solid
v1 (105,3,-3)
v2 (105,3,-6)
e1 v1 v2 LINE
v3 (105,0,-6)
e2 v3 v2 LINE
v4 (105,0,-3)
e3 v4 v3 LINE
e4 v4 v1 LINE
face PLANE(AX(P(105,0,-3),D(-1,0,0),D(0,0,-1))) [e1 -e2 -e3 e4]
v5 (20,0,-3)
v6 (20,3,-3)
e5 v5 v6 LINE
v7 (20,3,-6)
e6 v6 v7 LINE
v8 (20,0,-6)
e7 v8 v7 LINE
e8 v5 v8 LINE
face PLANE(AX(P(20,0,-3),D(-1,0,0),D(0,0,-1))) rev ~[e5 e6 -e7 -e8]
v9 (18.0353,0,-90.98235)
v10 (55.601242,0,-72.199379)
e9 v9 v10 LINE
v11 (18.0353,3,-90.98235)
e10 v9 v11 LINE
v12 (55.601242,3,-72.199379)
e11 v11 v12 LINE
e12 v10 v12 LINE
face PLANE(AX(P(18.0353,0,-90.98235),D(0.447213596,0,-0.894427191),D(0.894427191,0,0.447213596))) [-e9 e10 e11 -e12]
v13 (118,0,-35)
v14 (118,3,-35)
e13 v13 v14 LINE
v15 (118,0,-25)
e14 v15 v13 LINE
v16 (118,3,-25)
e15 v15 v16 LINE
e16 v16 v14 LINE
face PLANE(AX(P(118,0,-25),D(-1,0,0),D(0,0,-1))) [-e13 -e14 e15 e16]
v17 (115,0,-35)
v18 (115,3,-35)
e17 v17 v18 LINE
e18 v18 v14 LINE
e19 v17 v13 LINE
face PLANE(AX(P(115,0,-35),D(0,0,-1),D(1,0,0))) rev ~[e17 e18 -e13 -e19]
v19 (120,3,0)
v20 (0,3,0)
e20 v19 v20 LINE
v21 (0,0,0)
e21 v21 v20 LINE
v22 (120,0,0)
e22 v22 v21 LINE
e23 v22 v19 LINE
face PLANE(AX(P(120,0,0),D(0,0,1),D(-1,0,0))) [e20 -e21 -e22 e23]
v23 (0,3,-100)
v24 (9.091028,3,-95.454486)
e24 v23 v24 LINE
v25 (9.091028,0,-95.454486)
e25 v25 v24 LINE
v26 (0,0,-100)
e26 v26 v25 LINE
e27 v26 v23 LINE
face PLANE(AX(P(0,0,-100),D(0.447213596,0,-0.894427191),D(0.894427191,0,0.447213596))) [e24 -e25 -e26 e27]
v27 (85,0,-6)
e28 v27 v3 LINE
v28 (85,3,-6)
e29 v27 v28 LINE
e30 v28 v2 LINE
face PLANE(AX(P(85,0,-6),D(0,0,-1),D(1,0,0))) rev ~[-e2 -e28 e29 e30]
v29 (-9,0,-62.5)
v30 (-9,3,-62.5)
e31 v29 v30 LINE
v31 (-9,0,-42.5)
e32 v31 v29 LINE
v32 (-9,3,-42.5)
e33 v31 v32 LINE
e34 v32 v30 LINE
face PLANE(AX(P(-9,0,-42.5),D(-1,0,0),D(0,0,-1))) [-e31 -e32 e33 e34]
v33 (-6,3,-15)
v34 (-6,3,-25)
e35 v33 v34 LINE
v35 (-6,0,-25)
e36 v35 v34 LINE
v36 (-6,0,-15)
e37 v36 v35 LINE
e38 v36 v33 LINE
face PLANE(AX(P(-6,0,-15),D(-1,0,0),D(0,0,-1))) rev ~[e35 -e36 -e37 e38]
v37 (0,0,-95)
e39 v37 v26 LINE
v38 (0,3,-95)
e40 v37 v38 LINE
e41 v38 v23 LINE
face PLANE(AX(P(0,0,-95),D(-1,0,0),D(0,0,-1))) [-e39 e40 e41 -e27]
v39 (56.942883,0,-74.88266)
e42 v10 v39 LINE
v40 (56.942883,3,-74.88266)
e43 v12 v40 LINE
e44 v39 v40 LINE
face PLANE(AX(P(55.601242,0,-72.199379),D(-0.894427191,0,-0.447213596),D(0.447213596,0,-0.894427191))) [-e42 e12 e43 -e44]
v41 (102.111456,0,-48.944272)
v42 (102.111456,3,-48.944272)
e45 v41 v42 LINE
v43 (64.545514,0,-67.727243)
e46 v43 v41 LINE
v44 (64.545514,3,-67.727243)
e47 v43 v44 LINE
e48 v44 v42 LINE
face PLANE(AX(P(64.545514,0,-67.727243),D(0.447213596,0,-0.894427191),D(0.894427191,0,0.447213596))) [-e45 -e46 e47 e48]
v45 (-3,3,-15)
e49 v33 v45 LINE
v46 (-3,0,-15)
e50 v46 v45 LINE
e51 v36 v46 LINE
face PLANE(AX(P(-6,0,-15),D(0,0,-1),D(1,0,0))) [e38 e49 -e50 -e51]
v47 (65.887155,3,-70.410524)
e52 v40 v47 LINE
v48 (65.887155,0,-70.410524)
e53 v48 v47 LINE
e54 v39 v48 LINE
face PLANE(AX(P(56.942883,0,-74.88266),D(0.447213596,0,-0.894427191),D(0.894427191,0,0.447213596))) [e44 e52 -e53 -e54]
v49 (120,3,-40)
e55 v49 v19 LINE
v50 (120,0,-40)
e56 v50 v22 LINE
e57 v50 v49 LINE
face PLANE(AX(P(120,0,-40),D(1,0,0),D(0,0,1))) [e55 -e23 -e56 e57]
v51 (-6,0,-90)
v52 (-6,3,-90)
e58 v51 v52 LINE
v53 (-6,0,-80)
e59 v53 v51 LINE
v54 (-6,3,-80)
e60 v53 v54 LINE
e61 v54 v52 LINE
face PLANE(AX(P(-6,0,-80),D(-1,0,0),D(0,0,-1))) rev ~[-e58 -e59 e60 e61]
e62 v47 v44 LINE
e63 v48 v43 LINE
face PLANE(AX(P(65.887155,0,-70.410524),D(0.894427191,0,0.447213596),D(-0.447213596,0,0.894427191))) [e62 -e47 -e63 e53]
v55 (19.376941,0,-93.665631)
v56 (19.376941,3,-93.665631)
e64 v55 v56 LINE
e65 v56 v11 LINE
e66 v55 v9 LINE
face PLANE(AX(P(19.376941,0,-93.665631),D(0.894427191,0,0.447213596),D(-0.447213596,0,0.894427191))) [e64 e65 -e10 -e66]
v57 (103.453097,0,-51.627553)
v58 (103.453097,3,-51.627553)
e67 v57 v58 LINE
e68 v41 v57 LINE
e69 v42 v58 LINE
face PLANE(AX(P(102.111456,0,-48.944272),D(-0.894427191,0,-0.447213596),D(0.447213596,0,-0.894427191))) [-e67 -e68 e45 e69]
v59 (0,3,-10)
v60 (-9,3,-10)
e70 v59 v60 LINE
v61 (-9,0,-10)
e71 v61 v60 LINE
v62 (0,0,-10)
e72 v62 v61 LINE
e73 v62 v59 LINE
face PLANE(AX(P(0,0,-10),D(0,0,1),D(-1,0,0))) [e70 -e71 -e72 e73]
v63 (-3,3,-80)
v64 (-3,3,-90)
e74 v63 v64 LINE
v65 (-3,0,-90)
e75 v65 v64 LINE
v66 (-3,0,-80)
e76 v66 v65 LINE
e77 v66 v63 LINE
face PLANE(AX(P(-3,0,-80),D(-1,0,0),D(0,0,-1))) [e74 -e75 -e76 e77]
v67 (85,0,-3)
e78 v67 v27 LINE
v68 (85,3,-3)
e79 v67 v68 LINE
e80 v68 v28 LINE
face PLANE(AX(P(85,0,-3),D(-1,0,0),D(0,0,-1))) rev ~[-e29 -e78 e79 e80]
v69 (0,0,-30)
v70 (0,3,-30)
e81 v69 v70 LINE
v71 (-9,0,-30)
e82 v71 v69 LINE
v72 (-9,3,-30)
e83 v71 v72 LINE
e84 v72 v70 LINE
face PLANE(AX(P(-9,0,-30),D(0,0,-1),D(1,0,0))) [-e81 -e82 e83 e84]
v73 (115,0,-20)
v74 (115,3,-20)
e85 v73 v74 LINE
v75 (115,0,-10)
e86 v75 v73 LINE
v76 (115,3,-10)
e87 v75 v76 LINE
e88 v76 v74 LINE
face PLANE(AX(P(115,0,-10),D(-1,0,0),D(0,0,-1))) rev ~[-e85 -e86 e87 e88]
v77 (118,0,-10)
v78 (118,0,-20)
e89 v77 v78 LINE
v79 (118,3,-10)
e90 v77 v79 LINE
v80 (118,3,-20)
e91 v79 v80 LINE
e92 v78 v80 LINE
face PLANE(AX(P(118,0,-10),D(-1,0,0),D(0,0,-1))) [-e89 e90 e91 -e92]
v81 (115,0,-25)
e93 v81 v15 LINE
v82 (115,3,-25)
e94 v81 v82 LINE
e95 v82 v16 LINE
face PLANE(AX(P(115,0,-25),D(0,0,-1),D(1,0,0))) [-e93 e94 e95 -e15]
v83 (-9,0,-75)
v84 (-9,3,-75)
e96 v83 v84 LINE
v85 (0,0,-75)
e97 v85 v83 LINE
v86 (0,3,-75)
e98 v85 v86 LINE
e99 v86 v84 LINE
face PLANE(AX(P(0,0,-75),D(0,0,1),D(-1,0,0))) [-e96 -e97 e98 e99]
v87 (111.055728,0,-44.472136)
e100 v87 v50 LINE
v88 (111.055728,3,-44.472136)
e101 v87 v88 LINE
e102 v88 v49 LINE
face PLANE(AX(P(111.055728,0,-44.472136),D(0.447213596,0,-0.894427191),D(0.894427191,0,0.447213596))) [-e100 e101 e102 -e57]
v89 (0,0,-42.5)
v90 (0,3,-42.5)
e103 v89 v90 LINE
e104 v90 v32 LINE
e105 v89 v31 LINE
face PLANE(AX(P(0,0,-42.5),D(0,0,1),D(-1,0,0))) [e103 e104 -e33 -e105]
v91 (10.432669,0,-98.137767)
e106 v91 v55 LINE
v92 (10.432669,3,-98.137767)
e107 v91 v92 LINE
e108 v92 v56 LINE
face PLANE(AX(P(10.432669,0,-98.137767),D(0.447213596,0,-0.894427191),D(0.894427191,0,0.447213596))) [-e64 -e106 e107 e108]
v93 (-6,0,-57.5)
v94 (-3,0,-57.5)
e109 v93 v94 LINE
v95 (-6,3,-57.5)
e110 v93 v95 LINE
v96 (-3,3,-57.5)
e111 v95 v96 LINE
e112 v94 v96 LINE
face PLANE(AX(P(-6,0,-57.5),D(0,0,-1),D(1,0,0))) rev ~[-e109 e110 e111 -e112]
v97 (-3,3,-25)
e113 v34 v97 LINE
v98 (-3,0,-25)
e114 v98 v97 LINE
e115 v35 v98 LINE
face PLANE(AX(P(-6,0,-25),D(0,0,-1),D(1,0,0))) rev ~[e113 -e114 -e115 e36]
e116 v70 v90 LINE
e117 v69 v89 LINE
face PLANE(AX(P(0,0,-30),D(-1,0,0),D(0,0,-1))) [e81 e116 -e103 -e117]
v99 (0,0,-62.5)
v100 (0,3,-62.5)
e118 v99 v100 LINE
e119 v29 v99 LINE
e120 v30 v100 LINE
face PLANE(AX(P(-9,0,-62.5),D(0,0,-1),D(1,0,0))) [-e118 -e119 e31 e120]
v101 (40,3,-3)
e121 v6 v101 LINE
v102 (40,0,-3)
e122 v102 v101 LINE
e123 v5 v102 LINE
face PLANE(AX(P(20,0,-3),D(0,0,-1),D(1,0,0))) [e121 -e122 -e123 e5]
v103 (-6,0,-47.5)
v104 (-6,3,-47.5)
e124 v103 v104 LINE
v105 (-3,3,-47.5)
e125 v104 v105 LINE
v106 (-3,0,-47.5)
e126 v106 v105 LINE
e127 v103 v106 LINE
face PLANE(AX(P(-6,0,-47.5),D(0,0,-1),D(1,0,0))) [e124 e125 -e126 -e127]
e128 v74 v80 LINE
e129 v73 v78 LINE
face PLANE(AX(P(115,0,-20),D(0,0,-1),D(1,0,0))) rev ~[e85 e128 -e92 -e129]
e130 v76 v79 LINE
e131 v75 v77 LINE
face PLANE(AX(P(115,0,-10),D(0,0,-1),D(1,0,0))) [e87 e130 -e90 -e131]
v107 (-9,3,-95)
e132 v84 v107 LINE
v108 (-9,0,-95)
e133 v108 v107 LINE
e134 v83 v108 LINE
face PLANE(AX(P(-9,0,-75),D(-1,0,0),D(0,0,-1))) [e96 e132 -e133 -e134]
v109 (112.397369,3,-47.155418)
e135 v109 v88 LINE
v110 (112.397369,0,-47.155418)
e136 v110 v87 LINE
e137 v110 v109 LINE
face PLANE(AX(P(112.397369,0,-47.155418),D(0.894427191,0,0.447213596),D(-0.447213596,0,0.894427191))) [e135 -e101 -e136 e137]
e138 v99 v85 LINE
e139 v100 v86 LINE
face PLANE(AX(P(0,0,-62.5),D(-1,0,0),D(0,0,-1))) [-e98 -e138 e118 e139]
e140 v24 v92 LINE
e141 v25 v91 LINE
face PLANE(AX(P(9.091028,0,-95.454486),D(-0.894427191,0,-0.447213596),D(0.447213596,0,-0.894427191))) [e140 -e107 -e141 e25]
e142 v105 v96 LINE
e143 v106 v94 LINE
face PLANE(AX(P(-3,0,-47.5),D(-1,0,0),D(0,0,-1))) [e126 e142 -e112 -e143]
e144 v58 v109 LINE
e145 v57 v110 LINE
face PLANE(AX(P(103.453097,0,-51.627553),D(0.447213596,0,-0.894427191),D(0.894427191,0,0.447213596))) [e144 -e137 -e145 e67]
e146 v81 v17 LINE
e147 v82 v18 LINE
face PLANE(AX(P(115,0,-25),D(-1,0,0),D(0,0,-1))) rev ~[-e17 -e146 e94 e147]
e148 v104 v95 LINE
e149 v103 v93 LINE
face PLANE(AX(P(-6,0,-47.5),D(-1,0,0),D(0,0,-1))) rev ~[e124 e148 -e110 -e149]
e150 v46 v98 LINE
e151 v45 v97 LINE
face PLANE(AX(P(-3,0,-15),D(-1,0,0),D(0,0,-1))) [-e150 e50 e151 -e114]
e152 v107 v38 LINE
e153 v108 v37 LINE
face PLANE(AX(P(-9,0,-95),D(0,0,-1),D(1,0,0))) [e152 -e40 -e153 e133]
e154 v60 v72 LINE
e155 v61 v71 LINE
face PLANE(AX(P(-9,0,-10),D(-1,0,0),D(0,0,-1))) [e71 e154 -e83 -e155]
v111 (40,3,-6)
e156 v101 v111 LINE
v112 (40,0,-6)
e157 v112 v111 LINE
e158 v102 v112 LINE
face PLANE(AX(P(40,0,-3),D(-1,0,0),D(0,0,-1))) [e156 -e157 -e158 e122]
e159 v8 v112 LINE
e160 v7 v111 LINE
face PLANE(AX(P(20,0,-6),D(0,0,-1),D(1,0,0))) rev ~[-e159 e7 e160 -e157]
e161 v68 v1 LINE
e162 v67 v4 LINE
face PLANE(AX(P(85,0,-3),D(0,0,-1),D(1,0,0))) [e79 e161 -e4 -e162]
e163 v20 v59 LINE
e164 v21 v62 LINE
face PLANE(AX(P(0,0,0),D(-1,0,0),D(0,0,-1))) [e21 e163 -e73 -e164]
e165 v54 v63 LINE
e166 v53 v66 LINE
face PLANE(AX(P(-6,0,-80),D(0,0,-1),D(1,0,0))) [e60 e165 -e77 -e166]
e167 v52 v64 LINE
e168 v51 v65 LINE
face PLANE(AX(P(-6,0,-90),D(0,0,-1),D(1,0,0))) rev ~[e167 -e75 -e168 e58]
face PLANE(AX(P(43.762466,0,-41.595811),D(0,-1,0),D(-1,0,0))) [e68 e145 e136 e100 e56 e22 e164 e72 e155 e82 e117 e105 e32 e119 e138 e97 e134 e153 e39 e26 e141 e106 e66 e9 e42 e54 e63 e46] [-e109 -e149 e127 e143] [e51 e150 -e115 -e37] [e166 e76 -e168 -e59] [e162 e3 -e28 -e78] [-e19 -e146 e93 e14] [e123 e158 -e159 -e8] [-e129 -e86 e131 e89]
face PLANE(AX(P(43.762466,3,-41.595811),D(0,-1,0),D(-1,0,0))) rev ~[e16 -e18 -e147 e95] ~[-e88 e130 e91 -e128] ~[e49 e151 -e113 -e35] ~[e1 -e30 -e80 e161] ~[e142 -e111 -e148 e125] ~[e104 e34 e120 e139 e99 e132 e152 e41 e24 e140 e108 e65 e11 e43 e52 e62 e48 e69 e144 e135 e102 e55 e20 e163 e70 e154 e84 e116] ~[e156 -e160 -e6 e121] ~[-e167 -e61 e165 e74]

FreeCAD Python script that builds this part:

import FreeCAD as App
import Part
import Sketcher

V = App.Vector


def add_polygon(sketch, points):
    """Adds a closed chain of lines whose ends are joined by coincident constraints."""
    first, n = sketch.GeometryCount, len(points)
    for a, b in zip(points, points[1:] + points[:1]):
        sketch.addGeometry(Part.LineSegment(App.Vector(*a, 0), App.Vector(*b, 0)), False)
    for i in range(n):
        sketch.addConstraint(Sketcher.Constraint("Coincident", first + i, 2, first + (i + 1) % n, 1))

doc = App.newDocument("Part")
body = doc.addObject("PartDesign::Body", "Body")

# Sketch on XZ plane
sketch1 = body.newObject("Sketcher::SketchObject", "Sketch")
sketch1.AttachmentSupport = (doc.getObject("XZ_Plane"), [""])
sketch1.MapMode = "FlatFace"
add_polygon(sketch1, [(0, -10), (0, 0), (120, 0), (120, -40), (111.055728, -44.472136), (112.397369, -47.155418), (103.453097, -51.627553), (102.111456, -48.944272), (64.545514, -67.727243), (65.887155, -70.410524), (56.942883, -74.88266), (55.601242, -72.199379), (18.0353, -90.98235), (19.376941, -93.665631), (10.432669, -98.137767), (9.091028, -95.454486), (0, -100), (0, -95), (-9, -95), (-9, -75), (0, -75), (0, -62.5), (-9, -62.5), (-9, -42.5), (0, -42.5), (0, -30), (-9, -30), (-9, -10)])  # lines 0-27
add_polygon(sketch1, [(85, -3), (85, -6), (105, -6), (105, -3)])  # lines 28-31
add_polygon(sketch1, [(115, -10), (115, -20), (118, -20), (118, -10)])  # lines 32-35
add_polygon(sketch1, [(115, -25), (115, -35), (118, -35), (118, -25)])  # lines 36-39
add_polygon(sketch1, [(20, -3), (20, -6), (40, -6), (40, -3)])  # lines 40-43
add_polygon(sketch1, [(-6, -15), (-6, -25), (-3, -25), (-3, -15)])  # lines 44-47
add_polygon(sketch1, [(-6, -47.5), (-6, -57.5), (-3, -57.5), (-3, -47.5)])  # lines 48-51
add_polygon(sketch1, [(-6, -80), (-6, -90), (-3, -90), (-3, -80)])  # lines 52-55
sketch1.addConstraint(Sketcher.Constraint("Vertical", 0))
sketch1.addConstraint(Sketcher.Constraint("Horizontal", 1))
sketch1.addConstraint(Sketcher.Constraint("Vertical", 2))
sketch1.addConstraint(Sketcher.Constraint("Vertical", 16))
sketch1.addConstraint(Sketcher.Constraint("Horizontal", 17))
sketch1.addConstraint(Sketcher.Constraint("Vertical", 18))
sketch1.addConstraint(Sketcher.Constraint("Horizontal", 19))
sketch1.addConstraint(Sketcher.Constraint("Vertical", 20))
sketch1.addConstraint(Sketcher.Constraint("Horizontal", 21))
sketch1.addConstraint(Sketcher.Constraint("Vertical", 22))
sketch1.addConstraint(Sketcher.Constraint("Horizontal", 23))
sketch1.addConstraint(Sketcher.Constraint("Vertical", 24))
sketch1.addConstraint(Sketcher.Constraint("Horizontal", 25))
sketch1.addConstraint(Sketcher.Constraint("Vertical", 26))
sketch1.addConstraint(Sketcher.Constraint("Horizontal", 27))
sketch1.addConstraint(Sketcher.Constraint("Vertical", 28))
sketch1.addConstraint(Sketcher.Constraint("Horizontal", 29))
sketch1.addConstraint(Sketcher.Constraint("Vertical", 30))
sketch1.addConstraint(Sketcher.Constraint("Horizontal", 31))
sketch1.addConstraint(Sketcher.Constraint("Vertical", 32))
sketch1.addConstraint(Sketcher.Constraint("Horizontal", 33))
sketch1.addConstraint(Sketcher.Constraint("Vertical", 34))
sketch1.addConstraint(Sketcher.Constraint("Horizontal", 35))
sketch1.addConstraint(Sketcher.Constraint("Vertical", 36))
sketch1.addConstraint(Sketcher.Constraint("Horizontal", 37))
sketch1.addConstraint(Sketcher.Constraint("Vertical", 38))
sketch1.addConstraint(Sketcher.Constraint("Horizontal", 39))
sketch1.addConstraint(Sketcher.Constraint("Vertical", 40))
sketch1.addConstraint(Sketcher.Constraint("Horizontal", 41))
sketch1.addConstraint(Sketcher.Constraint("Vertical", 42))
sketch1.addConstraint(Sketcher.Constraint("Horizontal", 43))
sketch1.addConstraint(Sketcher.Constraint("Vertical", 44))
sketch1.addConstraint(Sketcher.Constraint("Horizontal", 45))
sketch1.addConstraint(Sketcher.Constraint("Vertical", 46))
sketch1.addConstraint(Sketcher.Constraint("Horizontal", 47))
sketch1.addConstraint(Sketcher.Constraint("Vertical", 48))
sketch1.addConstraint(Sketcher.Constraint("Horizontal", 49))
sketch1.addConstraint(Sketcher.Constraint("Vertical", 50))
sketch1.addConstraint(Sketcher.Constraint("Horizontal", 51))
sketch1.addConstraint(Sketcher.Constraint("Vertical", 52))
sketch1.addConstraint(Sketcher.Constraint("Horizontal", 53))
sketch1.addConstraint(Sketcher.Constraint("Vertical", 54))
sketch1.addConstraint(Sketcher.Constraint("Horizontal", 55))
sketch1.addConstraint(Sketcher.Constraint("Coincident", 0, 2, -1, 1))
sketch1.addConstraint(Sketcher.Constraint("PointOnObject", 15, 2, -2))
sketch1.addConstraint(Sketcher.Constraint("PointOnObject", 19, 2, -2))
sketch1.addConstraint(Sketcher.Constraint("PointOnObject", 23, 2, -2))
sketch1.addConstraint(Sketcher.Constraint("Perpendicular", 3, 4))
sketch1.addConstraint(Sketcher.Constraint("Perpendicular", 4, 5))
sketch1.addConstraint(Sketcher.Constraint("Perpendicular", 5, 6))
sketch1.addConstraint(Sketcher.Constraint("Perpendicular", 6, 7))
sketch1.addConstraint(Sketcher.Constraint("Perpendicular", 7, 8))
sketch1.addConstraint(Sketcher.Constraint("Perpendicular", 8, 9))
sketch1.addConstraint(Sketcher.Constraint("Perpendicular", 9, 10))
sketch1.addConstraint(Sketcher.Constraint("Perpendicular", 10, 11))
sketch1.addConstraint(Sketcher.Constraint("Perpendicular", 11, 12))
sketch1.addConstraint(Sketcher.Constraint("Perpendicular", 12, 13))
sketch1.addConstraint(Sketcher.Constraint("Perpendicular", 13, 14))
sketch1.addConstraint(Sketcher.Constraint("Perpendicular", 14, 15))
sketch1.addConstraint(Sketcher.Constraint("Horizontal", 27, 2, 34, 2))
sketch1.addConstraint(Sketcher.Constraint("Horizontal", 29, 2, 40, 2))
sketch1.addConstraint(Sketcher.Constraint("Horizontal", 31, 2, 42, 2))
sketch1.addConstraint(Sketcher.Constraint("Horizontal", 39, 2, 44, 2))
sketch1.addConstraint(Sketcher.Constraint("Vertical", 18, 2, 21, 2))
sketch1.addConstraint(Sketcher.Constraint("Vertical", 22, 2, 25, 2))
sketch1.addConstraint(Sketcher.Constraint("Vertical", 35, 2, 36, 2))
sketch1.addConstraint(Sketcher.Constraint("Vertical", 34, 2, 37, 2))
sketch1.addConstraint(Sketcher.Constraint("Vertical", 47, 2, 48, 2))
sketch1.addConstraint(Sketcher.Constraint("Vertical", 46, 2, 49, 2))
sketch1.addConstraint(Sketcher.Constraint("Vertical", 51, 2, 52, 2))
sketch1.addConstraint(Sketcher.Constraint("Vertical", 50, 2, 53, 2))
sketch1.addConstraint(Sketcher.Constraint("Equal", 31, 41))
sketch1.addConstraint(Sketcher.Constraint("Equal", 39, 45))
sketch1.addConstraint(Sketcher.Constraint("Equal", 43, 18))
sketch1.addConstraint(Sketcher.Constraint("Equal", 18, 22))
sketch1.addConstraint(Sketcher.Constraint("Equal", 20, 24))
sketch1.addConstraint(Sketcher.Constraint("Equal", 22, 26))
sketch1.addConstraint(Sketcher.Constraint("Equal", 55, 28))
sketch1.addConstraint(Sketcher.Constraint("Equal", 0, 32))
sketch1.addConstraint(Sketcher.Constraint("Equal", 34, 36))
sketch1.addConstraint(Sketcher.Constraint("Equal", 38, 44))
sketch1.addConstraint(Sketcher.Constraint("Equal", 46, 48))
sketch1.addConstraint(Sketcher.Constraint("Equal", 50, 52))
sketch1.addConstraint(Sketcher.Constraint("Equal", 3, 5))
sketch1.addConstraint(Sketcher.Constraint("Equal", 4, 6))
sketch1.addConstraint(Sketcher.Constraint("Equal", 6, 8))
sketch1.addConstraint(Sketcher.Constraint("Equal", 5, 9))
sketch1.addConstraint(Sketcher.Constraint("Equal", 8, 10))
sketch1.addConstraint(Sketcher.Constraint("Equal", 7, 11))
sketch1.addConstraint(Sketcher.Constraint("Equal", 10, 12))
sketch1.addConstraint(Sketcher.Constraint("Equal", 9, 13))
sketch1.addConstraint(Sketcher.Constraint("Equal", 12, 14))
sketch1.addConstraint(Sketcher.Constraint("DistanceX", 1, 1, 1, 2, 120.0))
sketch1.addConstraint(Sketcher.Constraint("DistanceX", 17, 2, 17, 1, 9.0))
sketch1.addConstraint(Sketcher.Constraint("DistanceX", 29, 1, 29, 2, 20.0))
sketch1.addConstraint(Sketcher.Constraint("DistanceX", 33, 1, 33, 2, 3.0))
sketch1.addConstraint(Sketcher.Constraint("DistanceY", 0, 1, 0, 2, 10.0))
sketch1.addConstraint(Sketcher.Constraint("DistanceY", 2, 2, 2, 1, 40.0))
sketch1.addConstraint(Sketcher.Constraint("DistanceY", 16, 1, 16, 2, 5.0))
sketch1.addConstraint(Sketcher.Constraint("Distance", 3, 10.0))
sketch1.addConstraint(Sketcher.Constraint("Distance", 4, 3.0))
sketch1.addConstraint(Sketcher.Constraint("Distance", 7, 42.0))
sketch1.addConstraint(Sketcher.Constraint("DistanceY", 20, 1, 20, 2, 12.5))
sketch1.addConstraint(Sketcher.Constraint("DistanceX", -1, 1, 28, 2, 85.0))
sketch1.addConstraint(Sketcher.Constraint("DistanceY", 28, 2, -1, 1, 6.0))
sketch1.addConstraint(Sketcher.Constraint("DistanceX", -1, 1, 32, 2, 115.0))
sketch1.addConstraint(Sketcher.Constraint("DistanceY", 36, 2, -1, 1, 35.0))
sketch1.addConstraint(Sketcher.Constraint("DistanceX", -1, 1, 40, 2, 20.0))
sketch1.addConstraint(Sketcher.Constraint("DistanceX", 44, 2, -1, 1, 6.0))
sketch1.addConstraint(Sketcher.Constraint("DistanceY", 52, 2, -1, 1, 90.0))
sketch1.addConstraint(Sketcher.Constraint("DistanceY", 21, 2, 48, 2, 5.0))
pad1 = body.newObject("PartDesign::Pad", "Pad")
pad1.Profile = sketch1
pad1.Length = 3
pad1.Reversed = True

doc.recompute()
